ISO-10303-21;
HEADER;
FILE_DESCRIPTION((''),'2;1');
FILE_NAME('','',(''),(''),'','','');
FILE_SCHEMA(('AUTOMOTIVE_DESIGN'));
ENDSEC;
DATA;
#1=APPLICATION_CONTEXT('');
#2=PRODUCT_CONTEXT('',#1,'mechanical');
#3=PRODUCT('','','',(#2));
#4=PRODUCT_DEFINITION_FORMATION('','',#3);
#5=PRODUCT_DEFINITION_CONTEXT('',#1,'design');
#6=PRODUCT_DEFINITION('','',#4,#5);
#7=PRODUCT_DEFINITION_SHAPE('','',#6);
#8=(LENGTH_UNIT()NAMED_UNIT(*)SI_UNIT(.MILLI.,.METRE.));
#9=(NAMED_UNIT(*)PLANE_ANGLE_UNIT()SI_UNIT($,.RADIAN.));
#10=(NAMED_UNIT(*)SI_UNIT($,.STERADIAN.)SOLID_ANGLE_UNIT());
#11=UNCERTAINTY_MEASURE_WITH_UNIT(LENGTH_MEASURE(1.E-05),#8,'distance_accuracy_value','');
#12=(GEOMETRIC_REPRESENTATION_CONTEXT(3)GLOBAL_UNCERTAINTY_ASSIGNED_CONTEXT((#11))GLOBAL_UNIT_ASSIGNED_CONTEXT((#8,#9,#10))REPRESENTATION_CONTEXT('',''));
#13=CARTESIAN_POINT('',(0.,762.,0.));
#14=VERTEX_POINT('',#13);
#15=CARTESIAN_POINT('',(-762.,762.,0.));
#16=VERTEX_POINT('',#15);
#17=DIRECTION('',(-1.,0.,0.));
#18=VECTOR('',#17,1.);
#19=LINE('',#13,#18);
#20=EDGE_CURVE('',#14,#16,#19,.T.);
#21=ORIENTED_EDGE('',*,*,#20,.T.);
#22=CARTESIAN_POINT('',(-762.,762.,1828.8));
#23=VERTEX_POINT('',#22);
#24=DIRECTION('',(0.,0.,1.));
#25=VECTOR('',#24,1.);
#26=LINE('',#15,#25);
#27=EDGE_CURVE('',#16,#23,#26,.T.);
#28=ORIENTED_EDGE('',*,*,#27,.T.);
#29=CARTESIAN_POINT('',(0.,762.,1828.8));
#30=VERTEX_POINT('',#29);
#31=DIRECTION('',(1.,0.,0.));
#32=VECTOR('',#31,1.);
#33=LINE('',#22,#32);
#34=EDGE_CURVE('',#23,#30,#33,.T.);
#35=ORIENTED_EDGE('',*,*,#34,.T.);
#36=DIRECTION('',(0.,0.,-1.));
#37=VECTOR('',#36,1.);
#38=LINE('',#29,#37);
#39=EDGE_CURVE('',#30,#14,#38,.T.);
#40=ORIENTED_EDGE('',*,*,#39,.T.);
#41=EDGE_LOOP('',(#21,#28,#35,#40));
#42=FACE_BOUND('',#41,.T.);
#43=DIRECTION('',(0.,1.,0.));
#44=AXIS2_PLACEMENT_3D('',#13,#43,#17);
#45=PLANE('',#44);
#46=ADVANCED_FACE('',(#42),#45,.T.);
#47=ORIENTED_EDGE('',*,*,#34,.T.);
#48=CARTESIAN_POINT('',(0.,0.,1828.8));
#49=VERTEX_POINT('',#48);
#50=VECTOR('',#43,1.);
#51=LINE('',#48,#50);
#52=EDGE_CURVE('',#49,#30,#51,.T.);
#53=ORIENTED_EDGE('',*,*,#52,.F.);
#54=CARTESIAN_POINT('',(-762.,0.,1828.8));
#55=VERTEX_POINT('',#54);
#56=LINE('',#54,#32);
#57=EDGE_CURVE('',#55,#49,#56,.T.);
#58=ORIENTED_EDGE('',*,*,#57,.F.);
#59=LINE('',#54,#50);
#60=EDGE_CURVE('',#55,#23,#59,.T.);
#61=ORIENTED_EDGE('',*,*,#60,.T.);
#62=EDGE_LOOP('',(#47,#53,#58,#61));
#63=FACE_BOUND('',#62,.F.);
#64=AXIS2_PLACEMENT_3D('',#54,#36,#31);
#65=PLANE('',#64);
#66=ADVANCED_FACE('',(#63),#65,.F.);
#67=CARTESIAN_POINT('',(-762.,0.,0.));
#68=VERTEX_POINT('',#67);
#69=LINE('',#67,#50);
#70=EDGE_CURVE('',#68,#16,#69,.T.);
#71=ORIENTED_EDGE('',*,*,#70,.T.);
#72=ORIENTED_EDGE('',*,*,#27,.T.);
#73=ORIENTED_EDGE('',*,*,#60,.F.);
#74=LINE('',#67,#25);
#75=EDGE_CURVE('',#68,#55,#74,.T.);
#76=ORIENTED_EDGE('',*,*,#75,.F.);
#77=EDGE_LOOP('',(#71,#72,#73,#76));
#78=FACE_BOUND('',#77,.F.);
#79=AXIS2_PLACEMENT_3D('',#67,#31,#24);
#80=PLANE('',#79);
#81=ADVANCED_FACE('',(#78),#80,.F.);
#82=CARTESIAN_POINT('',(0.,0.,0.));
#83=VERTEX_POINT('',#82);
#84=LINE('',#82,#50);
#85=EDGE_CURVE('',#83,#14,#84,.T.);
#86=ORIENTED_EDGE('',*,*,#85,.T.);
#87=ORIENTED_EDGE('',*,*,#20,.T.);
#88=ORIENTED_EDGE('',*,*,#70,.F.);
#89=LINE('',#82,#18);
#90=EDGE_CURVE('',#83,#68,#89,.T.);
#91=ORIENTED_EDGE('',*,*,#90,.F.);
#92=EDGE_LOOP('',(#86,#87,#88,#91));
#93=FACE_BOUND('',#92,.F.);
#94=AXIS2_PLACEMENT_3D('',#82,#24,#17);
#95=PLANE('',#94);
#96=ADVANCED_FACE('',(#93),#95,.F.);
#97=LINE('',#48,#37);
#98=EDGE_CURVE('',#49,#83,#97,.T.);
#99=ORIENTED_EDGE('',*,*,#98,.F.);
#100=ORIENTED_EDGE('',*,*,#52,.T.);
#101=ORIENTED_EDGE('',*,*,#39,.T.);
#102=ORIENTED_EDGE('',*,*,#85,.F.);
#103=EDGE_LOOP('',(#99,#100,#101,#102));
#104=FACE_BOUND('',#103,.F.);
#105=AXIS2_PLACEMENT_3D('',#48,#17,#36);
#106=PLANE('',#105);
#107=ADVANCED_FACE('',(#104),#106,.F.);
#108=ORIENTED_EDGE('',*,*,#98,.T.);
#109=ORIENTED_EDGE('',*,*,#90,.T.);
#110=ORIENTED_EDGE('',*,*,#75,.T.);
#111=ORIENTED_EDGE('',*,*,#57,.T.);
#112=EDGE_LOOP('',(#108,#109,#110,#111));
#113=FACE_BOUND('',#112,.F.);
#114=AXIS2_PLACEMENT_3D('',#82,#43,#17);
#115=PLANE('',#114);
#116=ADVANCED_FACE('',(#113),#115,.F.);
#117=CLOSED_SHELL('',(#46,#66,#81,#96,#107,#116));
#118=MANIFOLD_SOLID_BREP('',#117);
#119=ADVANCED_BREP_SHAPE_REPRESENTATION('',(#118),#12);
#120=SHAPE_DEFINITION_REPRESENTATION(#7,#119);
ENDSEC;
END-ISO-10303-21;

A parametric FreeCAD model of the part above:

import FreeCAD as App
import Part
import Sketcher
from FreeCAD import Vector
Q = App.Units.Quantity

doc = App.newDocument("Part")
body = doc.addObject("PartDesign::Body", "Body")

# Sketch on XZ plane
sketch1 = doc.addObject("Sketcher::SketchObject", "Sketch")
body.addObject(sketch1)
sketch1.AttachmentSupport = (doc.XZ_Plane, [""])
sketch1.MapMode = "FlatFace"
sketch1.addGeometry([
    Part.LineSegment(Vector(0, 1829, 0), Vector(0, 0, 0)),
    Part.LineSegment(Vector(0, 0, 0), Vector(-762, 0, 0)),
    Part.LineSegment(Vector(-762, 0, 0), Vector(-762, 1829, 0)),
    Part.LineSegment(Vector(-762, 1829, 0), Vector(0, 1829, 0)),
], False)
sketch1.addConstraint([
    Sketcher.Constraint("Coincident", 0, 2, 1, 1),
    Sketcher.Constraint("Coincident", 1, 2, 2, 1),
    Sketcher.Constraint("Coincident", 2, 2, 3, 1),
    Sketcher.Constraint("Coincident", 3, 2, 0, 1),
    Sketcher.Constraint("Vertical", 0),
    Sketcher.Constraint("Horizontal", 1),
    Sketcher.Constraint("Vertical", 2),
    Sketcher.Constraint("Horizontal", 3),
    Sketcher.Constraint("Coincident", 0, 2, -1, 1),
    Sketcher.Constraint("DistanceX", 1, 2, 1, 1, Q("30 in")),
    Sketcher.Constraint("DistanceY", 0, 2, 0, 1, Q("72 in")),
])
pad1 = doc.addObject("PartDesign::Pad", "Pad")
body.addObject(pad1)
pad1.Profile = sketch1
pad1.Length = Q("30 in")
pad1.Reversed = True

doc.recompute()
